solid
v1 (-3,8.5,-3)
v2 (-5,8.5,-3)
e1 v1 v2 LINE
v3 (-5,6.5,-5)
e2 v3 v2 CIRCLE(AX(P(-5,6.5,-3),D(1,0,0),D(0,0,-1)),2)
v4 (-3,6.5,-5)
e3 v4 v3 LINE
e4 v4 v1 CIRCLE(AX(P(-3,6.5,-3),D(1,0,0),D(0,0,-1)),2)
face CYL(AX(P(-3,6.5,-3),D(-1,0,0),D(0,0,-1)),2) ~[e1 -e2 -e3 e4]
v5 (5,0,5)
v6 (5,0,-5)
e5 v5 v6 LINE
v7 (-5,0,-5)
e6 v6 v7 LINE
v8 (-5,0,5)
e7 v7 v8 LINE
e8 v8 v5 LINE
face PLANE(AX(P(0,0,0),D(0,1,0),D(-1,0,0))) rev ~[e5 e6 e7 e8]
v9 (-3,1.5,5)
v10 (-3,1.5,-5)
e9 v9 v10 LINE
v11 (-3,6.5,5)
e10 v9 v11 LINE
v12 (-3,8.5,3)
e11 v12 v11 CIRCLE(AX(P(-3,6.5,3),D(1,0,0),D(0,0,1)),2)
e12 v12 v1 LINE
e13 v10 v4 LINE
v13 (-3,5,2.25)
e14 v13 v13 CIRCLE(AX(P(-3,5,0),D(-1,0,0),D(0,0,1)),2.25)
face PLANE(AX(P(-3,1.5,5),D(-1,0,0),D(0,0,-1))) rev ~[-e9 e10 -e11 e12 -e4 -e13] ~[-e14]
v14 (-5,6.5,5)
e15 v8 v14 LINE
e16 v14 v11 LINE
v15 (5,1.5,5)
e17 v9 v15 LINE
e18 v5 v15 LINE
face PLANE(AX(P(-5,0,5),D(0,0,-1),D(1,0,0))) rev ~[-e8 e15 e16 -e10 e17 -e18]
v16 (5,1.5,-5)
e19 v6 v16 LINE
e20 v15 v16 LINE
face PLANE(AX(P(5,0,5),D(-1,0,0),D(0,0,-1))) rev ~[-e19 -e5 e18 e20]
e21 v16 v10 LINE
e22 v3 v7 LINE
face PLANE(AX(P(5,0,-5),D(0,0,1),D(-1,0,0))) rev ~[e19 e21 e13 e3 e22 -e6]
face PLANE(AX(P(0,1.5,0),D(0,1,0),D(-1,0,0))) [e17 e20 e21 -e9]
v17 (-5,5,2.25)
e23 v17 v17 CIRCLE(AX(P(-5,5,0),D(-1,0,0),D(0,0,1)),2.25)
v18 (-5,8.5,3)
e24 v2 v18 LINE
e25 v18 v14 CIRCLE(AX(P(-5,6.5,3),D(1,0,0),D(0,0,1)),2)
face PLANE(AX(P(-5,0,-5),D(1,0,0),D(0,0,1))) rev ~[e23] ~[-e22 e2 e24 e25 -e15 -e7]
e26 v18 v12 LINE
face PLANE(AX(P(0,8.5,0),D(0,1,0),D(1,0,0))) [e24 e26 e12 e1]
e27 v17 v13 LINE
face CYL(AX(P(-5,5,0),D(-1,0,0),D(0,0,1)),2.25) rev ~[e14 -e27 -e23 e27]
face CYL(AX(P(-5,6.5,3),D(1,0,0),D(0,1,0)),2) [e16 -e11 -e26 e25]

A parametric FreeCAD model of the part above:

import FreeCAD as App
import Part
import Sketcher
Q = App.Units.Quantity


def edges_at(feature, points):
    """Names of the edges that pass closest to the given points."""
    edges = feature.Shape.Edges
    near = lambda p: min(range(len(edges)), key=lambda i: edges[i].distToShape(Part.Vertex(*p))[0])
    return sorted({f"Edge{near(p) + 1}" for p in points})

doc = App.newDocument("Part")
body = doc.addObject("PartDesign::Body", "Body")

sketch1 = body.newObject("Sketcher::SketchObject", "Sketch")
sketch1.AttachmentSupport = (doc.getObject("XZ_Plane"), [""])
sketch1.MapMode = "FlatFace"
sketch1.addGeometry(Part.LineSegment(App.Vector(-5, -5, 0), App.Vector(-5, 5, 0)), False)
sketch1.addGeometry(Part.LineSegment(App.Vector(-5, 5, 0), App.Vector(5, 5, 0)), False)
sketch1.addGeometry(Part.LineSegment(App.Vector(5, 5, 0), App.Vector(5, -5, 0)), False)
sketch1.addGeometry(Part.LineSegment(App.Vector(5, -5, 0), App.Vector(-5, -5, 0)), False)
sketch1.addConstraint(Sketcher.Constraint("Coincident", 0, 2, 1, 1))
sketch1.addConstraint(Sketcher.Constraint("Coincident", 1, 2, 2, 1))
sketch1.addConstraint(Sketcher.Constraint("Coincident", 2, 2, 3, 1))
sketch1.addConstraint(Sketcher.Constraint("Coincident", 3, 2, 0, 1))
sketch1.addConstraint(Sketcher.Constraint("Vertical", 0))
sketch1.addConstraint(Sketcher.Constraint("Horizontal", 1))
sketch1.addConstraint(Sketcher.Constraint("Vertical", 2))
sketch1.addConstraint(Sketcher.Constraint("Horizontal", 3))
sketch1.addConstraint(Sketcher.Constraint("Symmetric", 0, 2, 2, 2, -1, 1))
sketch1.addConstraint(Sketcher.Constraint("Equal", 3, 0))
sketch1.addConstraint(Sketcher.Constraint("DistanceX", 1, 1, 1, 2, Q("10 mm")))
pad1 = body.newObject("PartDesign::Pad", "Pad")
pad1.Profile = sketch1
pad1.Length = 1.5
pad1.Reversed = True

sketch2 = body.newObject("Sketcher::SketchObject", "Sketch001")
sketch2.AttachmentSupport = (doc.getObject("XZ_Plane"), [""])
sketch2.MapMode = "FlatFace"
sketch2.AttachmentOffset = App.Placement(App.Vector(0, 0, -1.5), App.Rotation())
sketch2.addGeometry(Part.LineSegment(App.Vector(-5, -5, 0), App.Vector(-5, 5, 0)), False)
sketch2.addGeometry(Part.LineSegment(App.Vector(-5, 5, 0), App.Vector(-3, 5, 0)), False)
sketch2.addGeometry(Part.LineSegment(App.Vector(-3, 5, 0), App.Vector(-3, -5, 0)), False)
sketch2.addGeometry(Part.LineSegment(App.Vector(-3, -5, 0), App.Vector(-5, -5, 0)), False)
sketch2.addConstraint(Sketcher.Constraint("Coincident", 0, 2, 1, 1))
sketch2.addConstraint(Sketcher.Constraint("Coincident", 1, 2, 2, 1))
sketch2.addConstraint(Sketcher.Constraint("Coincident", 2, 2, 3, 1))
sketch2.addConstraint(Sketcher.Constraint("Coincident", 3, 2, 0, 1))
sketch2.addConstraint(Sketcher.Constraint("Vertical", 0))
sketch2.addConstraint(Sketcher.Constraint("Horizontal", 1))
sketch2.addConstraint(Sketcher.Constraint("Vertical", 2))
sketch2.addConstraint(Sketcher.Constraint("Horizontal", 3))
sketch2.addConstraint(Sketcher.Constraint("DistanceX", 1, 1, 1, 2, Q("2 mm")))
sketch2.addConstraint(Sketcher.Constraint("DistanceY", 0, 1, 0, 2, Q("10 mm")))
sketch2.addConstraint(Sketcher.Constraint("DistanceX", 0, 2, -1, 1, Q("5 mm")))
sketch2.addConstraint(Sketcher.Constraint("DistanceY", -1, 1, 0, 2, Q("5 mm")))
pad2 = body.newObject("PartDesign::Pad", "Pad001")
pad2.Profile = sketch2
pad2.Length = 7
pad2.Reversed = True

sketch3 = body.newObject("Sketcher::SketchObject", "Sketch002")
sketch3.AttachmentSupport = (doc.getObject("YZ_Plane"), [""])
sketch3.MapMode = "FlatFace"
sketch3.AttachmentOffset = App.Placement(App.Vector(0, 0, -5), App.Rotation())
sketch3.addGeometry(Part.Circle(App.Vector(5, 0, 0), App.Vector(0, 0, 1), 2.2), False)
sketch3.addConstraint(Sketcher.Constraint("PointOnObject", 0, 3, -1))
sketch3.addConstraint(Sketcher.Constraint("Diameter", 0, Q("4.5 mm")))
sketch3.addConstraint(Sketcher.Constraint("DistanceX", -1, 1, 0, 3, Q("5 mm")))
pocket1 = body.newObject("PartDesign::Pocket", "Pocket")
pocket1.Profile = sketch3
pocket1.Type = "ThroughAll"
pocket1.Reversed = True
doc.recompute()

fillet = body.newObject("PartDesign::Fillet", "Fillet")
fillet.Base = (pocket1, edges_at(pocket1, [(-4, 8.5, 5), (-4, 8.5, -5)]))
fillet.Radius = 2

doc.recompute()
